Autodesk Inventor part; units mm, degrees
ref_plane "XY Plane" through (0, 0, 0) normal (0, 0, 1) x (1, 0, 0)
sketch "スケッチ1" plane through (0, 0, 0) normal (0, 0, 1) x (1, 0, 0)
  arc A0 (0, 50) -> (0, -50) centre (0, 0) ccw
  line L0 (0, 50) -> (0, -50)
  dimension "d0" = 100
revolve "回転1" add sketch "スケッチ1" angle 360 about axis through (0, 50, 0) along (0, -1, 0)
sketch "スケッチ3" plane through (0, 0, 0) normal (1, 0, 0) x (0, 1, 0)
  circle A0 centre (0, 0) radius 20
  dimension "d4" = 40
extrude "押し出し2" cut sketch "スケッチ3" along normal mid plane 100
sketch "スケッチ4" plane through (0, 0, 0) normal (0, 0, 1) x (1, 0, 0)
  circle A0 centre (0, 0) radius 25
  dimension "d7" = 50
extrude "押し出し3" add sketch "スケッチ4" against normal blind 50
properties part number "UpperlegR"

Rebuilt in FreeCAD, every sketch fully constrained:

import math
import FreeCAD as App
import Part
import Sketcher
Q = App.Units.Quantity

doc = App.newDocument("Part")
body = doc.addObject("PartDesign::Body", "Body")

# Sketch on XY plane
sketch1 = doc.addObject("Sketcher::SketchObject", "Sketch")
body.addObject(sketch1)
sketch1.AttachmentSupport = (doc.XY_Plane, [""])
sketch1.MapMode = "FlatFace"
sketch1.addGeometry([
    Part.LineSegment(App.Vector(0, -50, 0), App.Vector(0, 50, 0)),
    Part.ArcOfCircle(Part.Circle(App.Vector(0, 0, 0), App.Vector(0, 0, 1), 50), math.radians(90), math.radians(270)),
], False)
sketch1.addConstraint([
    Sketcher.Constraint("Coincident", 0, 1, 1, 2),
    Sketcher.Constraint("Coincident", 1, 1, 0, 2),
    Sketcher.Constraint("Vertical", 0),
    Sketcher.Constraint("Coincident", 1, 3, -1, 1),
    Sketcher.Constraint("PointOnObject", 0, 1, -2),
    Sketcher.Constraint("Radius", 1, Q("1.9685 in")),
])
revolution = doc.addObject("PartDesign::Revolution", "Revolution")
body.addObject(revolution)
revolution.Profile = sketch1
revolution.ReferenceAxis = (sketch1, ["V_Axis"])
revolution.Angle = 360

# Sketch on YZ plane
sketch2 = doc.addObject("Sketcher::SketchObject", "Sketch001")
body.addObject(sketch2)
sketch2.AttachmentSupport = (doc.YZ_Plane, [""])
sketch2.MapMode = "FlatFace"
sketch2.addGeometry(Part.Circle(App.Vector(0, 0, 0), App.Vector(0, 0, 1), 20), False)
sketch2.addConstraint([
    Sketcher.Constraint("Coincident", 0, 3, -1, 1),
    Sketcher.Constraint("Diameter", 0, Q("1.5748 in")),
])
pocket1 = doc.addObject("PartDesign::Pocket", "Pocket")
body.addObject(pocket1)
pocket1.Profile = sketch2
pocket1.Length = Q("3.9370079 in")
pocket1.Midplane = True

# Sketch on XY plane
sketch3 = doc.addObject("Sketcher::SketchObject", "Sketch002")
body.addObject(sketch3)
sketch3.AttachmentSupport = (doc.XY_Plane, [""])
sketch3.MapMode = "FlatFace"
sketch3.addGeometry(Part.Circle(App.Vector(0, 0, 0), App.Vector(0, 0, 1), 25), False)
sketch3.addConstraint([
    Sketcher.Constraint("Coincident", 0, 3, -1, 1),
    Sketcher.Constraint("Diameter", 0, Q("1.9685 in")),
])
pad1 = doc.addObject("PartDesign::Pad", "Pad")
body.addObject(pad1)
pad1.Profile = sketch3
pad1.Length = Q("1.9685039 in")
pad1.Reversed = True

doc.recompute()
